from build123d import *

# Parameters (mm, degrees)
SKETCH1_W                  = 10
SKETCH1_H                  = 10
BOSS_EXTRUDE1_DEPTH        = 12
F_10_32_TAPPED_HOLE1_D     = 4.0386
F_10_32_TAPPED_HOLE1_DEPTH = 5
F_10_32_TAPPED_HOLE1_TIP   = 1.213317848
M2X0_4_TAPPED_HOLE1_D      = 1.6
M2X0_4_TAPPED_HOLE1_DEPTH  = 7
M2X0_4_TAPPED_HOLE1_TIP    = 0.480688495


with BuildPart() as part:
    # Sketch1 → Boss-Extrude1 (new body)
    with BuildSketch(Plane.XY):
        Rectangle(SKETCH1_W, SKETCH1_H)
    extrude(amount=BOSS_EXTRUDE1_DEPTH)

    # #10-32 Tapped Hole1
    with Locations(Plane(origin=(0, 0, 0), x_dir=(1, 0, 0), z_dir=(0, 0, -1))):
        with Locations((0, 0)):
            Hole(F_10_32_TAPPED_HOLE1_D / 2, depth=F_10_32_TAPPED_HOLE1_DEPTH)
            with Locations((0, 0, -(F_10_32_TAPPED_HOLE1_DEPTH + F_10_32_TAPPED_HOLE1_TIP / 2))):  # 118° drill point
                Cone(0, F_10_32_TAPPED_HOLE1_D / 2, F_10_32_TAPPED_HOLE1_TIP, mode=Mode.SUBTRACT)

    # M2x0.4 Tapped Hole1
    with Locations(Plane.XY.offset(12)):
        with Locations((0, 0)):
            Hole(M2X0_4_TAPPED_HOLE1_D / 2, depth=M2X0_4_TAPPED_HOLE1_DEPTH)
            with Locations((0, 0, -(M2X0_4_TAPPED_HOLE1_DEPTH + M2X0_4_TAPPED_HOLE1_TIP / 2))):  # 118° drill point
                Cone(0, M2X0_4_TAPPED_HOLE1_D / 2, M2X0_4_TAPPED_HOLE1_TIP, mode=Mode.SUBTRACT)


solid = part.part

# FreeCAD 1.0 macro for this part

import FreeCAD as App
import Part
import Sketcher

V = App.Vector
Q = App.Units.Quantity


def add_polygon(sketch, points):
    """Adds a closed chain of lines whose ends are joined by coincident constraints."""
    first, n = sketch.GeometryCount, len(points)
    for a, b in zip(points, points[1:] + points[:1]):
        sketch.addGeometry(Part.LineSegment(App.Vector(*a, 0), App.Vector(*b, 0)), False)
    for i in range(n):
        sketch.addConstraint(Sketcher.Constraint("Coincident", first + i, 2, first + (i + 1) % n, 1))

doc = App.newDocument("Part")
params = doc.addObject("Spreadsheet::Sheet", "Params")
for row, (alias, value) in enumerate([
    ("sketch1_width", "10 mm"),
    ("pad1_length", "12 mm"),
    ("hole_diameter", "4.0386 mm"),
    ("hole_depth", "5 mm"),
    ("sketch3_diameter", "1.6 mm"),
    ("hole2_diameter", "1.6 mm"),
    ("hole2_depth", "7 mm"),
], start=1):
    params.set(f"A{row}", alias)
    params.set(f"B{row}", "=" + value)
    params.setAlias(f"B{row}", alias)

body = doc.addObject("PartDesign::Body", "Body")

# Sketch on XY plane
sketch1 = body.newObject("Sketcher::SketchObject", "Sketch")
sketch1.AttachmentSupport = (doc.getObject("XY_Plane"), [""])
sketch1.MapMode = "FlatFace"
add_polygon(sketch1, [(-5, 5), (-5, -5), (5, -5), (5, 5)])  # lines 0-3
sketch1.addConstraint(Sketcher.Constraint("Vertical", 0))
sketch1.addConstraint(Sketcher.Constraint("Horizontal", 1))
sketch1.addConstraint(Sketcher.Constraint("Vertical", 2))
sketch1.addConstraint(Sketcher.Constraint("Horizontal", 3))
sketch1.addConstraint(Sketcher.Constraint("Symmetric", 0, 2, 2, 2, -1, 1))
sketch1.addConstraint(Sketcher.Constraint("Equal", 3, 0))
sketch1.addConstraint(Sketcher.Constraint("DistanceX", 1, 1, 1, 2, Q("10 mm")))
sketch1.setExpression("Constraints[10]", "Params.sketch1_width")
pad1 = body.newObject("PartDesign::Pad", "Pad")
pad1.Profile = sketch1
pad1.setExpression("Length", "Params.pad1_length")

# Sketch on XY plane
sketch2 = body.newObject("Sketcher::SketchObject", "Sketch001")
sketch2.AttachmentSupport = (doc.getObject("XY_Plane"), [""])
sketch2.MapMode = "FlatFace"
sketch2.addGeometry(Part.Circle(V(0, 0, 0), V(0, 0, 1), 2), False)
sketch2.addConstraint(Sketcher.Constraint("Coincident", 0, 3, -1, 1))
sketch2.addConstraint(Sketcher.Constraint("Diameter", 0, Q("4.0386 mm")))
doc.recompute()
hole = body.newObject("PartDesign::Hole", "Hole")
hole.Profile = sketch2
hole.ThreadType = "None"
hole.setExpression("Diameter", "Params.hole_diameter")
hole.DepthType = "Dimension"
hole.setExpression("Depth", "Params.hole_depth")
hole.DrillPoint = "Angled"
hole.DrillPointAngle = 118
hole.Reversed = True

# Sketch on XY plane
sketch3 = body.newObject("Sketcher::SketchObject", "Sketch002")
sketch3.AttachmentSupport = (doc.getObject("XY_Plane"), [""])
sketch3.MapMode = "FlatFace"
sketch3.AttachmentOffset = App.Placement(V(0, 0, 12), App.Rotation())
sketch3.addGeometry(Part.Circle(V(0, 0, 0), V(0, 0, 1), 0.8), False)
sketch3.addConstraint(Sketcher.Constraint("Coincident", 0, 3, -1, 1))
sketch3.addConstraint(Sketcher.Constraint("Diameter", 0, Q("1.6 mm")))
sketch3.setExpression("Constraints[1]", "Params.sketch3_diameter")
doc.recompute()
hole2 = body.newObject("PartDesign::Hole", "Hole001")
hole2.Profile = sketch3
hole2.ThreadType = "None"
hole2.setExpression("Diameter", "Params.hole2_diameter")
hole2.DepthType = "Dimension"
hole2.setExpression("Depth", "Params.hole2_depth")
hole2.DrillPoint = "Angled"
hole2.DrillPointAngle = 118

doc.recompute()
